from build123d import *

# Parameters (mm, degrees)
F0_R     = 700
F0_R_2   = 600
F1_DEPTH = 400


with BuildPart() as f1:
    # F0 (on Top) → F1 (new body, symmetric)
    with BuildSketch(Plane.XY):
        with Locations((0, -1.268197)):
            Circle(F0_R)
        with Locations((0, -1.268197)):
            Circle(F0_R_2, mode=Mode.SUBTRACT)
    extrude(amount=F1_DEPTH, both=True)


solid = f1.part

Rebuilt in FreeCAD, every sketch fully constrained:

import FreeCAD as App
import Part
import Sketcher

doc = App.newDocument("Part")
body = doc.addObject("PartDesign::Body", "Body")

# Sketch on XY plane
sketch1 = doc.addObject("Sketcher::SketchObject", "Sketch")
body.addObject(sketch1)
sketch1.AttachmentSupport = (doc.XY_Plane, [""])
sketch1.MapMode = "FlatFace"
sketch1.addGeometry(Part.Circle(App.Vector(0, -1.268197, 0), App.Vector(0, 0, 1), 700), False)
sketch1.addGeometry(Part.Circle(App.Vector(0, -1.268197, 0), App.Vector(0, 0, 1), 600), False)
sketch1.addConstraint(Sketcher.Constraint("Coincident", 1, 3, 0, 3))
sketch1.addConstraint(Sketcher.Constraint("PointOnObject", 0, 3, -2))
sketch1.addConstraint(Sketcher.Constraint("Diameter", 0, 1400.0))
sketch1.addConstraint(Sketcher.Constraint("Diameter", 1, 1200.0))
sketch1.addConstraint(Sketcher.Constraint("DistanceY", 0, 3, -1, 1, 1.268197))
pad1 = doc.addObject("PartDesign::Pad", "Pad")
body.addObject(pad1)
pad1.Profile = sketch1
pad1.Length = 800
pad1.Midplane = True

doc.recompute()
